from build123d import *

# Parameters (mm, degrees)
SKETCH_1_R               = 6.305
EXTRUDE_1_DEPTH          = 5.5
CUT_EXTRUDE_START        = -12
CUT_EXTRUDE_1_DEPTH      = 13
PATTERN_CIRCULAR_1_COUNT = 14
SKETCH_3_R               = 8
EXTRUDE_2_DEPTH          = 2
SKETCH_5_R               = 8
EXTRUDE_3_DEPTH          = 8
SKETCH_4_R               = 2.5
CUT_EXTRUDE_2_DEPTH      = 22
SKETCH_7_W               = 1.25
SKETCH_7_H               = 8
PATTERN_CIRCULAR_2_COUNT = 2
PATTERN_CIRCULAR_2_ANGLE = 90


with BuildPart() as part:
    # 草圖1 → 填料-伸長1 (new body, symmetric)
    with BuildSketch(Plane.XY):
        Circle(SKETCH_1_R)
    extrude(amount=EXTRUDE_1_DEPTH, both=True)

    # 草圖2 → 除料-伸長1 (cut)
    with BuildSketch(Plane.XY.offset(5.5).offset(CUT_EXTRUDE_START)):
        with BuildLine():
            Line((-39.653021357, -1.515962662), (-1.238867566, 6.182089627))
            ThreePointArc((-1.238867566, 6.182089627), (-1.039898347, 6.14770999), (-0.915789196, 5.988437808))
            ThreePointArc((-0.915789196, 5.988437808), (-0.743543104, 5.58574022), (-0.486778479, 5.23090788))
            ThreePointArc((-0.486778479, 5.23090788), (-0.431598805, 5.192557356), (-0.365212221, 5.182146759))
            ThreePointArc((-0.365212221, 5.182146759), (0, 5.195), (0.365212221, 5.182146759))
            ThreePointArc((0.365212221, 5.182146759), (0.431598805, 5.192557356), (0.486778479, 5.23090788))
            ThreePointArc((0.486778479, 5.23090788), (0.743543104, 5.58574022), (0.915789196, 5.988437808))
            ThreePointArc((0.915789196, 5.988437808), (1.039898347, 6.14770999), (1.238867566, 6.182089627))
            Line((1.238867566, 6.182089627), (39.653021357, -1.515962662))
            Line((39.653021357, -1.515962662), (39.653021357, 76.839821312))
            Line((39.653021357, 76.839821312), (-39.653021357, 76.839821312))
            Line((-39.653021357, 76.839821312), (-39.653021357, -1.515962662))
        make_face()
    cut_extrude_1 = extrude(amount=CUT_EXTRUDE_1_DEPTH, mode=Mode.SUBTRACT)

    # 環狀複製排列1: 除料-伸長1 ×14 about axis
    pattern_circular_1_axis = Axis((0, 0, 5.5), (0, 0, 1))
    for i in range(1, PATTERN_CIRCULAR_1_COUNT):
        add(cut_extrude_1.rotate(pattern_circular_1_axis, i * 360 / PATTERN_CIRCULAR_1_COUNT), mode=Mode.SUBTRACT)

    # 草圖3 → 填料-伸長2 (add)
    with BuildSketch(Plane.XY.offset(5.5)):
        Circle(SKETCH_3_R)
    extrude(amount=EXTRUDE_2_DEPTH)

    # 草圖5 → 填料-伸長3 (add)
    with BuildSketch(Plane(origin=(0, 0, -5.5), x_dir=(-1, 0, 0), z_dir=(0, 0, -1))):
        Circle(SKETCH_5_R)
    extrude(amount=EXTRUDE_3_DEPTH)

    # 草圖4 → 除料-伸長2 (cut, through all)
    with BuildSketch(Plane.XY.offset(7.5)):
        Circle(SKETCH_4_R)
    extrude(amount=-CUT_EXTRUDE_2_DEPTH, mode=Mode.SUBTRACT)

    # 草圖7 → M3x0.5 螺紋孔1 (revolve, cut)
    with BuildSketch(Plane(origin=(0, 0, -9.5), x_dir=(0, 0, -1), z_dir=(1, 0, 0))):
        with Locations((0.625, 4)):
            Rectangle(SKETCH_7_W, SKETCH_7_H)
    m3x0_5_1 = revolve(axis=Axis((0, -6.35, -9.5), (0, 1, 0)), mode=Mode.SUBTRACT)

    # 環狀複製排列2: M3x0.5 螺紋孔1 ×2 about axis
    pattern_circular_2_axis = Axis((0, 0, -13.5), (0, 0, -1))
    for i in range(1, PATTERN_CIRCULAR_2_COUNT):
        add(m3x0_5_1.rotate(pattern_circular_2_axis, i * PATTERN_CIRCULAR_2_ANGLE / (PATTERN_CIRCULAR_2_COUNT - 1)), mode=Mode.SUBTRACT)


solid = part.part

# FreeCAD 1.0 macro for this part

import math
import FreeCAD as App
import Part
import Sketcher
from FreeCAD import Vector

doc = App.newDocument("Part")
body = doc.addObject("PartDesign::Body", "Body")

# Sketch on XY plane
sketch1 = doc.addObject("Sketcher::SketchObject", "Sketch")
body.addObject(sketch1)
sketch1.AttachmentSupport = (doc.XY_Plane, [""])
sketch1.MapMode = "FlatFace"
sketch1.addGeometry(Part.Circle(Vector(0, 0, 0), Vector(0, 0, 1), 6), False)
sketch1.addConstraint([
    Sketcher.Constraint("Coincident", 0, 3, -1, 1),
    Sketcher.Constraint("Diameter", 0, 12.61),
])
pad1 = doc.addObject("PartDesign::Pad", "Pad")
body.addObject(pad1)
pad1.Profile = sketch1
pad1.Length = 11
pad1.Midplane = True

# Sketch on XY plane
sketch2 = doc.addObject("Sketcher::SketchObject", "Sketch001")
body.addObject(sketch2)
sketch2.AttachmentSupport = (doc.XY_Plane, [""])
sketch2.MapMode = "FlatFace"
sketch2.AttachmentOffset = App.Placement(Vector(0, 0, -6.5), App.Rotation())
sketch2.addGeometry([
    Part.LineSegment(Vector(-39.65, -1.52, 0), Vector(-1.24, 6.18, 0)),  # 0
    Part.ArcOfCircle(Part.Circle(Vector(-1.18, 5.91, 0), Vector(0, 0, 1), 0.28), math.radians(17), math.radians(101)),  # 1
    Part.ArcOfCircle(Part.Circle(Vector(0.98, 6.56, 0), Vector(0, 0, 1), 1.98), math.radians(-163), math.radians(-138)),  # 2
    Part.ArcOfCircle(Part.Circle(Vector(-0.38, 5.33, 0), Vector(0, 0, 1), 0.15), math.radians(-138), math.radians(-86)),  # 3
    Part.ArcOfCircle(Part.Circle(Vector(0, 0, 0), Vector(0, 0, 1), 5.19), math.radians(85.97), math.radians(94.03)),  # 4
    Part.ArcOfCircle(Part.Circle(Vector(0.38, 5.33, 0), Vector(0, 0, 1), 0.15), math.radians(-94), math.radians(-42)),  # 5
    Part.ArcOfCircle(Part.Circle(Vector(-0.98, 6.56, 0), Vector(0, 0, 1), 1.98), math.radians(-42), math.radians(-17)),  # 6
    Part.ArcOfCircle(Part.Circle(Vector(1.18, 5.91, 0), Vector(0, 0, 1), 0.28), math.radians(79), math.radians(163)),  # 7
    Part.LineSegment(Vector(1.24, 6.18, 0), Vector(39.65, -1.52, 0)),  # 8
    Part.LineSegment(Vector(39.65, -1.52, 0), Vector(39.65, 76.84, 0)),  # 9
    Part.LineSegment(Vector(39.65, 76.84, 0), Vector(-39.65, 76.84, 0)),  # 10
    Part.LineSegment(Vector(-39.65, 76.84, 0), Vector(-39.65, -1.52, 0)),  # 11
], False)
sketch2.addConstraint([
    Sketcher.Constraint("Tangent", 0, 2, 1, 2),
    Sketcher.Constraint("Tangent", 1, 1, 2, 1),
    Sketcher.Constraint("Tangent", 2, 2, 3, 1),
    Sketcher.Constraint("Tangent", 3, 2, 4, 2),
    Sketcher.Constraint("Tangent", 4, 1, 5, 1),
    Sketcher.Constraint("Tangent", 5, 2, 6, 1),
    Sketcher.Constraint("Tangent", 6, 2, 7, 2),
    Sketcher.Constraint("Tangent", 7, 1, 8, 1),
    Sketcher.Constraint("Coincident", 8, 2, 9, 1),
    Sketcher.Constraint("Coincident", 9, 2, 10, 1),
    Sketcher.Constraint("Coincident", 10, 2, 11, 1),
    Sketcher.Constraint("Coincident", 11, 2, 0, 1),
    Sketcher.Constraint("Vertical", 9),
    Sketcher.Constraint("Horizontal", 10),
    Sketcher.Constraint("Vertical", 11),
    Sketcher.Constraint("Coincident", 4, 3, -1, 1),
    Sketcher.Constraint("Equal", 3, 5),
    Sketcher.Constraint("Equal", 2, 6),
    Sketcher.Constraint("Equal", 1, 7),
    Sketcher.Constraint("Symmetric", 2, 3, 6, 3, -2),
    Sketcher.Constraint("Symmetric", 0, 2, 7, 1, -2),
    Sketcher.Constraint("Horizontal", 8, 2, 11, 2),
    Sketcher.Constraint("Radius", 1, 0.28),
    Sketcher.Constraint("Radius", 3, 0.15),
    Sketcher.Constraint("Radius", 2, 1.975),
    Sketcher.Constraint("Radius", 4, 5.195),
    Sketcher.Constraint("DistanceX", 6, 3, 2, 3, 1.95),
    Sketcher.Constraint("DistanceY", -1, 1, 2, 3, 6.559),
    Sketcher.Constraint("DistanceX", 1, 3, 7, 3, 2.367701),
    Sketcher.Constraint("DistanceY", 8, 2, 6, 2, 7.5044),
    Sketcher.Constraint("Distance", 0, 39.177892),
    Sketcher.Constraint("DistanceY", 9, 1, 9, 2, 78.355784),
])
pocket1 = doc.addObject("PartDesign::Pocket", "Pocket")
body.addObject(pocket1)
pocket1.Profile = sketch2
pocket1.Length = 13
pocket1.Reversed = True
doc.recompute()

polarpattern = doc.addObject("PartDesign::PolarPattern", "PolarPattern")
body.addObject(polarpattern)
polarpattern.Originals = [pocket1]
polarpattern.Axis = (doc.Z_Axis, [""])
polarpattern.Angle = 360
polarpattern.Occurrences = 14
body.Tip = polarpattern

# Sketch on XY plane
sketch3 = doc.addObject("Sketcher::SketchObject", "Sketch002")
body.addObject(sketch3)
sketch3.AttachmentSupport = (doc.XY_Plane, [""])
sketch3.MapMode = "FlatFace"
sketch3.AttachmentOffset = App.Placement(Vector(0, 0, 5.5), App.Rotation())
sketch3.addGeometry(Part.Circle(Vector(0, 0, 0), Vector(0, 0, 1), 8), False)
sketch3.addConstraint([
    Sketcher.Constraint("Coincident", 0, 3, -1, 1),
    Sketcher.Constraint("Diameter", 0, 16.0),
])
pad2 = doc.addObject("PartDesign::Pad", "Pad001")
body.addObject(pad2)
pad2.Profile = sketch3
pad2.Length = 2

# Sketch on XY plane
sketch4 = doc.addObject("Sketcher::SketchObject", "Sketch003")
body.addObject(sketch4)
sketch4.AttachmentSupport = (doc.XY_Plane, [""])
sketch4.MapMode = "FlatFace"
sketch4.AttachmentOffset = App.Placement(Vector(0, 0, -5.5), App.Rotation())
sketch4.addGeometry(Part.Circle(Vector(0, 0, 0), Vector(0, 0, 1), 8), False)
sketch4.addConstraint([
    Sketcher.Constraint("Coincident", 0, 3, -1, 1),
    Sketcher.Constraint("Diameter", 0, 16.0),
])
pad3 = doc.addObject("PartDesign::Pad", "Pad002")
body.addObject(pad3)
pad3.Profile = sketch4
pad3.Length = 8
pad3.Reversed = True

# Sketch on XY plane
sketch5 = doc.addObject("Sketcher::SketchObject", "Sketch004")
body.addObject(sketch5)
sketch5.AttachmentSupport = (doc.XY_Plane, [""])
sketch5.MapMode = "FlatFace"
sketch5.AttachmentOffset = App.Placement(Vector(0, 0, 7.5), App.Rotation())
sketch5.addGeometry(Part.Circle(Vector(0, 0, 0), Vector(0, 0, 1), 2.5), False)
sketch5.addConstraint([
    Sketcher.Constraint("Coincident", 0, 3, -1, 1),
    Sketcher.Constraint("Diameter", 0, 5.0),
])
pocket2 = doc.addObject("PartDesign::Pocket", "Pocket001")
body.addObject(pocket2)
pocket2.Profile = sketch5
pocket2.Type = "ThroughAll"

# Sketch on YZ plane
sketch6 = doc.addObject("Sketcher::SketchObject", "Sketch005")
body.addObject(sketch6)
sketch6.AttachmentSupport = (doc.YZ_Plane, [""])
sketch6.MapMode = "FlatFace"
sketch6.addGeometry([
    Part.LineSegment(Vector(8, -9.5, 0), Vector(0, -9.5, 0)),
    Part.LineSegment(Vector(0, -9.5, 0), Vector(0, -10.8, 0)),
    Part.LineSegment(Vector(0, -10.8, 0), Vector(8, -10.8, 0)),
    Part.LineSegment(Vector(8, -10.8, 0), Vector(8, -9.5, 0)),
], False)
sketch6.addGeometry(Part.LineSegment(Vector(0, -9.5, 0), Vector(8, -9.5, 0)), True)  # axis
sketch6.addConstraint([
    Sketcher.Constraint("Coincident", 0, 2, 1, 1),
    Sketcher.Constraint("Coincident", 1, 2, 2, 1),
    Sketcher.Constraint("Coincident", 2, 2, 3, 1),
    Sketcher.Constraint("Coincident", 3, 2, 0, 1),
    Sketcher.Constraint("Horizontal", 0),
    Sketcher.Constraint("Vertical", 1),
    Sketcher.Constraint("Horizontal", 2),
    Sketcher.Constraint("Vertical", 3),
    Sketcher.Constraint("Horizontal", 4),
    Sketcher.Constraint("Coincident", 4, 1, 0, 2),
    Sketcher.Constraint("PointOnObject", 0, 2, -2),
    Sketcher.Constraint("Vertical", 2, 2, 4, 2),
    Sketcher.Constraint("DistanceX", 0, 2, 0, 1, 8.0),
    Sketcher.Constraint("DistanceY", 1, 2, 1, 1, 1.25),
    Sketcher.Constraint("DistanceY", 0, 2, -1, 1, 9.5),
])
groove = doc.addObject("PartDesign::Groove", "Groove")
body.addObject(groove)
groove.Profile = sketch6
groove.ReferenceAxis = (sketch6, ["Axis0"])
groove.Angle = 360
doc.recompute()

polarpattern2 = doc.addObject("PartDesign::PolarPattern", "PolarPattern001")
body.addObject(polarpattern2)
polarpattern2.Originals = [groove]
polarpattern2.Axis = (doc.Z_Axis, [""])
polarpattern2.Angle = 90
polarpattern2.Occurrences = 2
polarpattern2.Reversed = True
body.Tip = polarpattern2

doc.recompute()
